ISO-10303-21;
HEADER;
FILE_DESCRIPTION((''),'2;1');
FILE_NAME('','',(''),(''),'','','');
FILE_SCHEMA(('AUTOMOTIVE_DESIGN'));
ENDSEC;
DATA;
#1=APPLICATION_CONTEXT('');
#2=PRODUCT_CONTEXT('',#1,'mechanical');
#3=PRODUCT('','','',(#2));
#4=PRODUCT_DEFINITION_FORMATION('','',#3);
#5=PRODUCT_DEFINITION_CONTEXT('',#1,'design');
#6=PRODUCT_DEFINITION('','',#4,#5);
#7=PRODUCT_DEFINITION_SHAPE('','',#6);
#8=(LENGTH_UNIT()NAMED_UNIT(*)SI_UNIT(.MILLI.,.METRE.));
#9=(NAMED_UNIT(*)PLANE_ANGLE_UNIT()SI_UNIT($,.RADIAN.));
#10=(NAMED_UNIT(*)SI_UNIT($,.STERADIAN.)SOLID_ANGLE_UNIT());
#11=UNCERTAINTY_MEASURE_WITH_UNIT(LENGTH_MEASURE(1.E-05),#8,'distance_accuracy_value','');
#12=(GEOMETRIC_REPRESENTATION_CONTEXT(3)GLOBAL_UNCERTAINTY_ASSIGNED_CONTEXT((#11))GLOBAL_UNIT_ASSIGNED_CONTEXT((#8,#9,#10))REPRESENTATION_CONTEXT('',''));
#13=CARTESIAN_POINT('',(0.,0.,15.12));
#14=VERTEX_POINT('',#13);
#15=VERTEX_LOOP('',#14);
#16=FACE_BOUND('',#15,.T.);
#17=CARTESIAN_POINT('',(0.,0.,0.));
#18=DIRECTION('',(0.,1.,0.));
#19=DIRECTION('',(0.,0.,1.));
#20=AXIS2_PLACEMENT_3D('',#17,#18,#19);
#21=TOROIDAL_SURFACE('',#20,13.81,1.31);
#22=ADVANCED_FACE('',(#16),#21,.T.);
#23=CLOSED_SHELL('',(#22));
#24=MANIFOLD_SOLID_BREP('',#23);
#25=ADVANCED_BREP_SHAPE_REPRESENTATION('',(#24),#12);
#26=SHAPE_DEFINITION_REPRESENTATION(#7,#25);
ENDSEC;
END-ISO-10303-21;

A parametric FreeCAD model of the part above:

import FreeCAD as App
import Part
import Sketcher
from FreeCAD import Vector

doc = App.newDocument("Part")
body = doc.addObject("PartDesign::Body", "Body")

# Sketch on XY plane
sketch1 = body.newObject("Sketcher::SketchObject", "Sketch")
sketch1.AttachmentSupport = (doc.getObject("XY_Plane"), [""])
sketch1.MapMode = "FlatFace"
sketch1.addGeometry(Part.Circle(Vector(13.8, 0, 0), Vector(0, 0, 1), 1.3), False)
sketch1.addConstraint(Sketcher.Constraint("PointOnObject", 0, 3, -1))
sketch1.addConstraint(Sketcher.Constraint("Diameter", 0, 2.62))
sketch1.addConstraint(Sketcher.Constraint("DistanceX", -1, 1, 0, 3, 13.81))
revolution = body.newObject("PartDesign::Revolution", "Revolution")
revolution.Profile = sketch1
revolution.ReferenceAxis = (sketch1, ["V_Axis"])
revolution.Angle = 360

doc.recompute()
